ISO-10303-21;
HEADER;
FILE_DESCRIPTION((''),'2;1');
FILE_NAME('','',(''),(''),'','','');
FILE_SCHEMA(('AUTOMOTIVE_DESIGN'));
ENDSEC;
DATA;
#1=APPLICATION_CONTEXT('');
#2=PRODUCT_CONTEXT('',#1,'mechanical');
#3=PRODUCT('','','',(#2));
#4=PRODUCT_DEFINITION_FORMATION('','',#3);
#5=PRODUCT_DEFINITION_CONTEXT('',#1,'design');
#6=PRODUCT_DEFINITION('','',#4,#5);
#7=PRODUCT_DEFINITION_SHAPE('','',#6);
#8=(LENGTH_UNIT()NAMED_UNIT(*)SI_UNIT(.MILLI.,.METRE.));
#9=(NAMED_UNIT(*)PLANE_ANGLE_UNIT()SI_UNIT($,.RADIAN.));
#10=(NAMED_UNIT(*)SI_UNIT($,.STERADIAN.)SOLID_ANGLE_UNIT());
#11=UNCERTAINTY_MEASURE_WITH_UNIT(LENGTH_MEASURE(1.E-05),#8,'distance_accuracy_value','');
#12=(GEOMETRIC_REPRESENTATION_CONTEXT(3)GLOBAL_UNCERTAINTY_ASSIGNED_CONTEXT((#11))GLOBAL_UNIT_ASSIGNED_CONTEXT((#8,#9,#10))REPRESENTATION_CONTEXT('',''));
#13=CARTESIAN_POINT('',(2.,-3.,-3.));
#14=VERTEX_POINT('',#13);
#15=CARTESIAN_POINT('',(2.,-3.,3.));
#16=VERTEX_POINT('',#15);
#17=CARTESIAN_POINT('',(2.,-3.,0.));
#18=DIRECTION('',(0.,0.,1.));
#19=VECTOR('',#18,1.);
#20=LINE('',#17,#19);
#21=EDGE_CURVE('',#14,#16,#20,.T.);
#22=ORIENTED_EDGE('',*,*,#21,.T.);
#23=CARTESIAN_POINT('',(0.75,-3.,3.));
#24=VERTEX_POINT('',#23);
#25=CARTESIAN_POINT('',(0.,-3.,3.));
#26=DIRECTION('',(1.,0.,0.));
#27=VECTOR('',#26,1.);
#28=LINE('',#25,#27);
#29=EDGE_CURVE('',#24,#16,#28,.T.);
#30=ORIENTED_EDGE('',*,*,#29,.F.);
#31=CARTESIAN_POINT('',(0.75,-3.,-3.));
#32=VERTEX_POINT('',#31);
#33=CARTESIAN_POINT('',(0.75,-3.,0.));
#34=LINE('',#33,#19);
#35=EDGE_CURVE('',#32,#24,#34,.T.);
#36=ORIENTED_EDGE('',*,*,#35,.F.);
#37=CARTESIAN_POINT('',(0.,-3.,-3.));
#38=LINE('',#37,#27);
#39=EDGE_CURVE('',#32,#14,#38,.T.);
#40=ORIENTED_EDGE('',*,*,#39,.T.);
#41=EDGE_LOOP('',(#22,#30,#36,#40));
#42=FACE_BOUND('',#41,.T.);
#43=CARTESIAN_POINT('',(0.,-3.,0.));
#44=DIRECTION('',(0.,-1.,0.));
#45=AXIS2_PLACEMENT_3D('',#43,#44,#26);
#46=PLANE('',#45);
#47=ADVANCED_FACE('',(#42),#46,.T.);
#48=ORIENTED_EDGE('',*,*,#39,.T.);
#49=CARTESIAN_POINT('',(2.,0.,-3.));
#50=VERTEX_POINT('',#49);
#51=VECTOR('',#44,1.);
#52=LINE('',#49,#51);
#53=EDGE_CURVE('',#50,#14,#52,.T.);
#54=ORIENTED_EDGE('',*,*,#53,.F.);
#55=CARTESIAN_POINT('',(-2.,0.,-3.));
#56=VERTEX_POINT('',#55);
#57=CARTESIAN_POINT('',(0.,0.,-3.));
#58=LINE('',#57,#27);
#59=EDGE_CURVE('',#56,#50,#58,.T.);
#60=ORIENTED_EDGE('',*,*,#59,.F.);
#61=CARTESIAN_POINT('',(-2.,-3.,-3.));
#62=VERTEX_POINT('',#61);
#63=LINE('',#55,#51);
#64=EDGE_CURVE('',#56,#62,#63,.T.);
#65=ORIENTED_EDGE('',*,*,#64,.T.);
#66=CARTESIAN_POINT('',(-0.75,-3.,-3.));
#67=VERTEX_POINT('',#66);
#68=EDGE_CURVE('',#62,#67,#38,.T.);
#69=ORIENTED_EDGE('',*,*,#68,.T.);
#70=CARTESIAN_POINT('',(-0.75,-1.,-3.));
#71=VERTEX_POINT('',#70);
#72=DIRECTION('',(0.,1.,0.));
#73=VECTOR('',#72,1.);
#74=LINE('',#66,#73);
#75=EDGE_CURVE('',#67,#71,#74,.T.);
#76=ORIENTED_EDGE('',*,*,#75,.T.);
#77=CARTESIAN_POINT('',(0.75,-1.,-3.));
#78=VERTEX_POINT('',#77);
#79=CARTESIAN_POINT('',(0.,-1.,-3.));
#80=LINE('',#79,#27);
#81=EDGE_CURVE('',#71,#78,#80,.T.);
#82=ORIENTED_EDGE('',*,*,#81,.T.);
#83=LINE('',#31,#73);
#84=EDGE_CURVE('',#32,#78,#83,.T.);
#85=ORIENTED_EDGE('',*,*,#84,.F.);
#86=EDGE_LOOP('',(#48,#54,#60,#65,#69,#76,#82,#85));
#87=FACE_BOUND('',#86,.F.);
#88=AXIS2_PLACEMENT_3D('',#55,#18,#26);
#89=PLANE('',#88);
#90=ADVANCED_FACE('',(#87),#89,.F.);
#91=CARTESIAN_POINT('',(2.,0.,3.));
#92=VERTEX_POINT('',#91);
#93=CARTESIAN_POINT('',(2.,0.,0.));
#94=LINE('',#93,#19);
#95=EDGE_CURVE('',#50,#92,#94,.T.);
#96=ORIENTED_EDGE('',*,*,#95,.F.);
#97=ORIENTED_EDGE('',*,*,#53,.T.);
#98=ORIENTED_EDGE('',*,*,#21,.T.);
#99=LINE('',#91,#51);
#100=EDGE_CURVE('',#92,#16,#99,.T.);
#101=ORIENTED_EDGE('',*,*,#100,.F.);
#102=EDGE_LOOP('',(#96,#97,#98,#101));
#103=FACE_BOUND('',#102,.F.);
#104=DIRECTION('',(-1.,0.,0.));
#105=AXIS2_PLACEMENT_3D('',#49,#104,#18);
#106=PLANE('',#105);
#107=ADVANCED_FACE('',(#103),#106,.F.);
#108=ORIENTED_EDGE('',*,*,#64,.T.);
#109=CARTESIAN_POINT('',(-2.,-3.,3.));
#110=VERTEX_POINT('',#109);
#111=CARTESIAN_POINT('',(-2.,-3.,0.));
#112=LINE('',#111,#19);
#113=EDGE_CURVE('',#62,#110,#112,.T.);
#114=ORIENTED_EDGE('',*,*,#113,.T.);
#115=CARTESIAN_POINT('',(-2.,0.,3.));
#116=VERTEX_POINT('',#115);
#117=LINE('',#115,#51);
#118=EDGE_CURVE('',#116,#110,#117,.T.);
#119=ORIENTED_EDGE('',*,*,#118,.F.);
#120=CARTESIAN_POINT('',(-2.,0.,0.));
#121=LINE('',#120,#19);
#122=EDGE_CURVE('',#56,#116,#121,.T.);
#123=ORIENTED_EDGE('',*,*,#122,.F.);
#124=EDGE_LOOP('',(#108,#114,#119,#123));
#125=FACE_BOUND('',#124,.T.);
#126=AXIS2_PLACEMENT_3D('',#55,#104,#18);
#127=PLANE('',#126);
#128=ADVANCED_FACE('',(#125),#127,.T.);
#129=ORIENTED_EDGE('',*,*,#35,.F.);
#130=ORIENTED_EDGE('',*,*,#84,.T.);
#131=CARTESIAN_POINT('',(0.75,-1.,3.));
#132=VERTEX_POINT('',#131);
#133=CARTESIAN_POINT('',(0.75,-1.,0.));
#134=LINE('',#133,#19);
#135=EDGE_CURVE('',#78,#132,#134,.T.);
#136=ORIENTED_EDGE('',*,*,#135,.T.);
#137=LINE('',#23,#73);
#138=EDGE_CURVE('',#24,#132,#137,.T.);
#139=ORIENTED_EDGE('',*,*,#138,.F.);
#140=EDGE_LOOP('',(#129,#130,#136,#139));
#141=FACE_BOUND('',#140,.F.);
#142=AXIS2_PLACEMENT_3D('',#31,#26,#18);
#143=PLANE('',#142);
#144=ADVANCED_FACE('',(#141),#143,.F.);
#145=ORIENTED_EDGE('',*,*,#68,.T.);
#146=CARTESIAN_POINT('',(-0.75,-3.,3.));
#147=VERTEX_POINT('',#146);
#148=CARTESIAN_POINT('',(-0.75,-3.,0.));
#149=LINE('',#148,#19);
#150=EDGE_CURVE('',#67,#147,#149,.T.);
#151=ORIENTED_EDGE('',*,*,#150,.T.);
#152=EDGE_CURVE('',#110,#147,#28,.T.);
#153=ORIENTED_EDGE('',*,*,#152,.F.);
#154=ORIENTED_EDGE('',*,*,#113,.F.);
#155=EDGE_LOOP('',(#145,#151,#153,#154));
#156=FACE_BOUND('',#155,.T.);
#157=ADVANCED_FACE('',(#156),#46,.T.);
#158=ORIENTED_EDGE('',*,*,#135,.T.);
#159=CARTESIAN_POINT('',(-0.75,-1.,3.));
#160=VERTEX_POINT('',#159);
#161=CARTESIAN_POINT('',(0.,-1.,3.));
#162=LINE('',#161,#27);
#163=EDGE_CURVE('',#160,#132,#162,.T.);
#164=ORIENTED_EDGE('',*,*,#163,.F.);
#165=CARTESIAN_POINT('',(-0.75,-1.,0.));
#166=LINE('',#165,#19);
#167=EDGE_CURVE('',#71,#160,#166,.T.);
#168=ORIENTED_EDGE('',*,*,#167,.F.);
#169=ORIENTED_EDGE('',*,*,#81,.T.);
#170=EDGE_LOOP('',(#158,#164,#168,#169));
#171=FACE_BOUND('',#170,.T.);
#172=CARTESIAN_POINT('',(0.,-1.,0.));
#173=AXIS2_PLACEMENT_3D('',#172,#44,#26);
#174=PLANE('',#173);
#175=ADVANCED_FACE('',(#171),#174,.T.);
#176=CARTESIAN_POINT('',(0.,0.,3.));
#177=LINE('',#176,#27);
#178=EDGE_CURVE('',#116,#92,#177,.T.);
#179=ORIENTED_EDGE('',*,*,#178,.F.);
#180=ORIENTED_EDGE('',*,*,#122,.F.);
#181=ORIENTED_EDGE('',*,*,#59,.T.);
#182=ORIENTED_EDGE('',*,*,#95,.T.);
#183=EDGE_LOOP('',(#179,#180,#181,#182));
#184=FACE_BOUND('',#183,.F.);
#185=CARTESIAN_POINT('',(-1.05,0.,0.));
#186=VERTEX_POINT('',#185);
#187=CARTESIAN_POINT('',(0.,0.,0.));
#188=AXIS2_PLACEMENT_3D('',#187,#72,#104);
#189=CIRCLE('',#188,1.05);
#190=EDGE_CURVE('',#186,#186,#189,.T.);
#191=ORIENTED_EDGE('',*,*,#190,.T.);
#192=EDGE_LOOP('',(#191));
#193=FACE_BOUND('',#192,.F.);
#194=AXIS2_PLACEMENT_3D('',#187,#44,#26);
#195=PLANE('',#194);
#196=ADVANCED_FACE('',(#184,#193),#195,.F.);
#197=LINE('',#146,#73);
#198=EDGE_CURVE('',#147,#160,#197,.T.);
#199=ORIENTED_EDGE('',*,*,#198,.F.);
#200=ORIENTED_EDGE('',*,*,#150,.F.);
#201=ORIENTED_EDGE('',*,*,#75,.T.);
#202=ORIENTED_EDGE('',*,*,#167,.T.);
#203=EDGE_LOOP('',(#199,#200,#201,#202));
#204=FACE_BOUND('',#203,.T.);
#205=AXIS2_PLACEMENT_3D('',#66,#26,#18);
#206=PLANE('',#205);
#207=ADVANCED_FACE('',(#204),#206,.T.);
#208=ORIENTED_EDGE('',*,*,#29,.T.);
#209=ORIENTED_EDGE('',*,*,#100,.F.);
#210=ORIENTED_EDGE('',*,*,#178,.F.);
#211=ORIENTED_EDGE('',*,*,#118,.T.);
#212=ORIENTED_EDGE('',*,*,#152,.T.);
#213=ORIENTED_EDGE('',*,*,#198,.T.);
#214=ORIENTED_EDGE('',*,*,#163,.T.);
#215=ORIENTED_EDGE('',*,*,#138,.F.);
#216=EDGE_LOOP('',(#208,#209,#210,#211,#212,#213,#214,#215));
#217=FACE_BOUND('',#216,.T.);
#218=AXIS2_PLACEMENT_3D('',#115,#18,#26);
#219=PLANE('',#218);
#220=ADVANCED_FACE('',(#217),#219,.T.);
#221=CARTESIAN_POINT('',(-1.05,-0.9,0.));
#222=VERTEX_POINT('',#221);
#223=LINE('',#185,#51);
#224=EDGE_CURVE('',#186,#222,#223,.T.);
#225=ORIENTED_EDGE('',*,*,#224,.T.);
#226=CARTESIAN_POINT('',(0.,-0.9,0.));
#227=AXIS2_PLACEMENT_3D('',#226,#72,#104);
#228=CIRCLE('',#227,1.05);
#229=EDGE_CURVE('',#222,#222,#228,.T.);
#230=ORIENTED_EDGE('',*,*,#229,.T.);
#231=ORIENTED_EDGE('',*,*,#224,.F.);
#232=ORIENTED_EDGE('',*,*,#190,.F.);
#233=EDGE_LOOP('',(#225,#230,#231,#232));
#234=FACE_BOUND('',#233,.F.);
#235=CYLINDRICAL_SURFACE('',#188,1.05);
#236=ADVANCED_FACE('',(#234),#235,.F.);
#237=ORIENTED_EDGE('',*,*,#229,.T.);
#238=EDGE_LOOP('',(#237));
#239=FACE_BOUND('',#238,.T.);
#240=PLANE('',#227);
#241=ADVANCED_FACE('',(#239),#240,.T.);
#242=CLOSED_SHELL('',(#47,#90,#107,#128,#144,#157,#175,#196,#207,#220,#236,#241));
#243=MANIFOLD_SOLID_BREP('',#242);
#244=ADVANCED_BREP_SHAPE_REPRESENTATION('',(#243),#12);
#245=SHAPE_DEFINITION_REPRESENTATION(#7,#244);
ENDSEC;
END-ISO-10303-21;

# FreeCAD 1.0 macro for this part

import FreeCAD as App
import Part
import Sketcher


def add_polygon(sketch, points):
    """Adds a closed chain of lines whose ends are joined by coincident constraints."""
    first, n = sketch.GeometryCount, len(points)
    for a, b in zip(points, points[1:] + points[:1]):
        sketch.addGeometry(Part.LineSegment(App.Vector(*a, 0), App.Vector(*b, 0)), False)
    for i in range(n):
        sketch.addConstraint(Sketcher.Constraint("Coincident", first + i, 2, first + (i + 1) % n, 1))

doc = App.newDocument("Part")
body = doc.addObject("PartDesign::Body", "Body")

sketch1 = body.newObject("Sketcher::SketchObject", "Sketch")
sketch1.AttachmentSupport = (doc.getObject("XZ_Plane"), [""])
sketch1.MapMode = "FlatFace"
add_polygon(sketch1, [(-2, 3), (-2, -3), (2, -3), (2, 3)])
sketch1.addConstraint([
    Sketcher.Constraint("Vertical", 0),
    Sketcher.Constraint("Horizontal", 1),
    Sketcher.Constraint("Vertical", 2),
    Sketcher.Constraint("Horizontal", 3),
    Sketcher.Constraint("Symmetric", 0, 2, 2, 2, -1, 1),
    Sketcher.Constraint("DistanceX", 1, 1, 1, 2, 4.0),
    Sketcher.Constraint("DistanceY", 0, 2, 0, 1, 6.0),
])
pad1 = body.newObject("PartDesign::Pad", "Pad")
pad1.Profile = sketch1
pad1.Length = 3

sketch2 = body.newObject("Sketcher::SketchObject", "Sketch001")
sketch2.AttachmentSupport = (doc.getObject("XZ_Plane"), [""])
sketch2.MapMode = "FlatFace"
sketch2.AttachmentOffset = App.Placement(App.Vector(0, 0, 3), App.Rotation())
add_polygon(sketch2, [(-0.8, 3), (-0.8, -3), (0.8, -3), (0.8, 3)])
sketch2.addConstraint([
    Sketcher.Constraint("Vertical", 0),
    Sketcher.Constraint("Horizontal", 1),
    Sketcher.Constraint("Vertical", 2),
    Sketcher.Constraint("Horizontal", 3),
    Sketcher.Constraint("Symmetric", 0, 2, 2, 2, -1, 1),
    Sketcher.Constraint("DistanceY", 0, 2, 0, 1, 6.0),
    Sketcher.Constraint("DistanceX", 1, 1, 1, 2, 1.5),
])
pocket1 = body.newObject("PartDesign::Pocket", "Pocket")
pocket1.Profile = sketch2
pocket1.Length = 2

sketch3 = body.newObject("Sketcher::SketchObject", "Sketch002")
sketch3.AttachmentSupport = (doc.getObject("XZ_Plane"), [""])
sketch3.MapMode = "FlatFace"
sketch3.addGeometry(Part.Circle(App.Vector(0, 0, 0), App.Vector(0, 0, 1), 1.1), False)
sketch3.addConstraint([
    Sketcher.Constraint("Coincident", 0, 3, -1, 1),
    Sketcher.Constraint("Diameter", 0, 2.1),
])
pocket2 = body.newObject("PartDesign::Pocket", "Pocket001")
pocket2.Profile = sketch3
pocket2.Length = 0.9
pocket2.Reversed = True

doc.recompute()
